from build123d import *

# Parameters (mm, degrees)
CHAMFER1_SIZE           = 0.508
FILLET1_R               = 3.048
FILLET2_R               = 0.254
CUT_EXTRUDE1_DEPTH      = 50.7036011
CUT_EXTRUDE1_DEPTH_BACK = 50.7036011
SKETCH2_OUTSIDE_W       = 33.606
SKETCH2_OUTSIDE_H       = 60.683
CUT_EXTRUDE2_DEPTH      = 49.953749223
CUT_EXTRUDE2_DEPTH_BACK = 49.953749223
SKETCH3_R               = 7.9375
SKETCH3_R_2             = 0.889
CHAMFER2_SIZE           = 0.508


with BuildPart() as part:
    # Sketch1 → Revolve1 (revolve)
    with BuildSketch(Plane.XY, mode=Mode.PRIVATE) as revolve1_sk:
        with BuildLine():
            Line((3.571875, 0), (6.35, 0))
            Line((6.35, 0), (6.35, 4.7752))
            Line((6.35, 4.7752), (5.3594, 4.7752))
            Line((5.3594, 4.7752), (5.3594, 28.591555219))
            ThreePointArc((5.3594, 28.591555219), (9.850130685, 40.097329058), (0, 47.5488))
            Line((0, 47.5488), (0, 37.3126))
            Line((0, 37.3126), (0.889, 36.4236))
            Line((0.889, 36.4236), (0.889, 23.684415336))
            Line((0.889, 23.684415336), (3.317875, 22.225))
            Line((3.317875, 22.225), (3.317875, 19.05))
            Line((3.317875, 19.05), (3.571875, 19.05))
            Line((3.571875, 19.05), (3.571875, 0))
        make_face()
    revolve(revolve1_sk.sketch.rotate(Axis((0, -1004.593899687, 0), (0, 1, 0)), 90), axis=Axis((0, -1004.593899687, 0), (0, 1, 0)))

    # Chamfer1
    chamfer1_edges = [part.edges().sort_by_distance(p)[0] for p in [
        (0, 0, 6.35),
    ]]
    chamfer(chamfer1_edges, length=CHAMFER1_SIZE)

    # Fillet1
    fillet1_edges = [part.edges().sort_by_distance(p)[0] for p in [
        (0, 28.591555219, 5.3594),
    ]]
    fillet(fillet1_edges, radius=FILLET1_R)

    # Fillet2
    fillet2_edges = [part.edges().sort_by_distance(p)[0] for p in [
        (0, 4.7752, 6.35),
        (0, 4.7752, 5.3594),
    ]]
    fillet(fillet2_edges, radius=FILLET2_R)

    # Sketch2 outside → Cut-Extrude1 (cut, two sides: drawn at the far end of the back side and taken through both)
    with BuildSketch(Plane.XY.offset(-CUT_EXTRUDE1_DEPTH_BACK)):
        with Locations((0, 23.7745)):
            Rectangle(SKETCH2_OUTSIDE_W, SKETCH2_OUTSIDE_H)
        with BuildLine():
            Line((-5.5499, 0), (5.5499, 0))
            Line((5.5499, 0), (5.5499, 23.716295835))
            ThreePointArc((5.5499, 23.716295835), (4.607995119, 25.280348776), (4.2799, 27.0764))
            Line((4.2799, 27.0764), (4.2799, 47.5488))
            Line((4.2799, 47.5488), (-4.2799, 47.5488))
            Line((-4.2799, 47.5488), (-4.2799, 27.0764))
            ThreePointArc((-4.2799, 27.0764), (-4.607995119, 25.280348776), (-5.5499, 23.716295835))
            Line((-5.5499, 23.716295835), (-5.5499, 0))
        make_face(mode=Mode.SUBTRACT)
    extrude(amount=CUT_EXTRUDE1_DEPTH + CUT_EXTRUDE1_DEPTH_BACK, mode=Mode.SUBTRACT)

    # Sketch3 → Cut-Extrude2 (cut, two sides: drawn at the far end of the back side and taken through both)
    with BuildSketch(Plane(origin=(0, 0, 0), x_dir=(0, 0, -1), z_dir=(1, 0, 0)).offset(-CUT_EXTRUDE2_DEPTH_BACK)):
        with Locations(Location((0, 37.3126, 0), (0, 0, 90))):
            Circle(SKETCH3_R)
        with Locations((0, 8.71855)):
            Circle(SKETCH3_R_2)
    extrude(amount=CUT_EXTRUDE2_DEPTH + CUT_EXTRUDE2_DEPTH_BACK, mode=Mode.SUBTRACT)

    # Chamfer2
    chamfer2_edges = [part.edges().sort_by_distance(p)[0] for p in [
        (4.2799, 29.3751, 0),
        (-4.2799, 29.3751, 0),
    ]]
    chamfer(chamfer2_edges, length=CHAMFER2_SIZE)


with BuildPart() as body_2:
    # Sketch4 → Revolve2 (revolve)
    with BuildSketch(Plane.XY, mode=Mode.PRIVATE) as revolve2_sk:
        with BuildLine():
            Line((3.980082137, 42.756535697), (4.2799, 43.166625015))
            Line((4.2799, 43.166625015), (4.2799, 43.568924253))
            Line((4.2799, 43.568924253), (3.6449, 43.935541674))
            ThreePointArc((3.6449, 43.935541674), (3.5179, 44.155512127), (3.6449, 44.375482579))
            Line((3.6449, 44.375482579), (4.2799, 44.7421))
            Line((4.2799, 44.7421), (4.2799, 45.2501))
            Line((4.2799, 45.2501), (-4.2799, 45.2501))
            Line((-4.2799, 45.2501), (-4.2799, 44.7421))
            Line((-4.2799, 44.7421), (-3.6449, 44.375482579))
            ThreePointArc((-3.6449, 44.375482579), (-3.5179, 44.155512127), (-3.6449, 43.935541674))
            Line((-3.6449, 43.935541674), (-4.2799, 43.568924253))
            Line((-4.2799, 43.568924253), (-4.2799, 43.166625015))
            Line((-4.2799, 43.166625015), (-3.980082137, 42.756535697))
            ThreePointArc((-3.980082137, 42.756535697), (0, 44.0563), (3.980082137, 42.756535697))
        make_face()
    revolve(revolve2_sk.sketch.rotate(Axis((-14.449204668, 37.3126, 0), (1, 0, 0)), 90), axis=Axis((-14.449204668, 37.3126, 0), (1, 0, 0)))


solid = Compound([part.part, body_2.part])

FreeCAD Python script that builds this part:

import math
import FreeCAD as App
import Part
import Sketcher
Q = App.Units.Quantity


def edges_at(feature, points):
    """Names of the edges that pass closest to the given points."""
    edges = feature.Shape.Edges
    near = lambda p: min(range(len(edges)), key=lambda i: edges[i].distToShape(Part.Vertex(*p))[0])
    return sorted({f"Edge{near(p) + 1}" for p in points})

doc = App.newDocument("Part")
body = doc.addObject("PartDesign::Body", "Body")

# Sketch on XY plane
sketch1 = doc.addObject("Sketcher::SketchObject", "Sketch")
body.addObject(sketch1)
sketch1.AttachmentSupport = (doc.XY_Plane, [""])
sketch1.MapMode = "FlatFace"
sketch1.addGeometry([
    Part.LineSegment(App.Vector(3.57, 0, 0), App.Vector(6.35, 0, 0)),  # 0
    Part.LineSegment(App.Vector(6.35, 0, 0), App.Vector(6.35, 4.78, 0)),  # 1
    Part.LineSegment(App.Vector(6.35, 4.78, 0), App.Vector(5.36, 4.78, 0)),  # 2
    Part.LineSegment(App.Vector(5.36, 4.78, 0), App.Vector(5.36, 28.59, 0)),  # 3
    Part.ArcOfCircle(Part.Circle(App.Vector(0, 37.31, 0), App.Vector(0, 0, 1), 10.24), math.radians(-58), math.radians(90)),  # 4
    Part.LineSegment(App.Vector(0, 47.55, 0), App.Vector(0, 37.31, 0)),  # 5
    Part.LineSegment(App.Vector(0, 37.31, 0), App.Vector(0.89, 36.42, 0)),  # 6
    Part.LineSegment(App.Vector(0.89, 36.42, 0), App.Vector(0.89, 23.68, 0)),  # 7
    Part.LineSegment(App.Vector(0.89, 23.68, 0), App.Vector(3.32, 22.23, 0)),  # 8
    Part.LineSegment(App.Vector(3.32, 22.23, 0), App.Vector(3.32, 19.05, 0)),  # 9
    Part.LineSegment(App.Vector(3.32, 19.05, 0), App.Vector(3.57, 19.05, 0)),  # 10
    Part.LineSegment(App.Vector(3.57, 19.05, 0), App.Vector(3.57, 0, 0)),  # 11
], False)
sketch1.addConstraint([
    Sketcher.Constraint("Coincident", 0, 2, 1, 1),
    Sketcher.Constraint("Coincident", 1, 2, 2, 1),
    Sketcher.Constraint("Coincident", 2, 2, 3, 1),
    Sketcher.Constraint("Coincident", 3, 2, 4, 1),
    Sketcher.Constraint("Coincident", 4, 2, 5, 1),
    Sketcher.Constraint("Coincident", 5, 2, 6, 1),
    Sketcher.Constraint("Coincident", 6, 2, 7, 1),
    Sketcher.Constraint("Coincident", 7, 2, 8, 1),
    Sketcher.Constraint("Coincident", 8, 2, 9, 1),
    Sketcher.Constraint("Coincident", 9, 2, 10, 1),
    Sketcher.Constraint("Coincident", 10, 2, 11, 1),
    Sketcher.Constraint("Coincident", 11, 2, 0, 1),
    Sketcher.Constraint("Horizontal", 0),
    Sketcher.Constraint("Vertical", 1),
    Sketcher.Constraint("Horizontal", 2),
    Sketcher.Constraint("Vertical", 3),
    Sketcher.Constraint("Vertical", 5),
    Sketcher.Constraint("Vertical", 7),
    Sketcher.Constraint("Vertical", 9),
    Sketcher.Constraint("Horizontal", 10),
    Sketcher.Constraint("Vertical", 11),
    Sketcher.Constraint("Coincident", 5, 2, 4, 3),
    Sketcher.Constraint("PointOnObject", 4, 3, -2),
    Sketcher.Constraint("PointOnObject", 0, 2, -1),
    Sketcher.Constraint("Angle", 6, Q("-45 deg")),
    Sketcher.Constraint("Angle", 8, Q("-31 deg")),
    Sketcher.Constraint("Radius", 4, Q("0.403 in")),
    Sketcher.Constraint("DistanceX", 10, 1, 10, 2, Q("0.01 in")),
    Sketcher.Constraint("DistanceY", 11, 2, 11, 1, Q("0.75 in")),
    Sketcher.Constraint("DistanceX", 0, 1, 0, 2, Q("0.109375 in")),
    Sketcher.Constraint("DistanceX", 2, 2, 2, 1, Q("0.039 in")),
    Sketcher.Constraint("DistanceY", 1, 1, 1, 2, Q("0.188 in")),
    Sketcher.Constraint("DistanceY", 9, 2, 9, 1, Q("0.125 in")),
    Sketcher.Constraint("DistanceX", -1, 1, 0, 2, Q("0.25 in")),
    Sketcher.Constraint("DistanceY", -1, 1, 4, 3, Q("1.469 in")),
    Sketcher.Constraint("DistanceX", -1, 1, 6, 2, Q("0.035 in")),
])
revolution = doc.addObject("PartDesign::Revolution", "Revolution")
body.addObject(revolution)
revolution.Profile = sketch1
revolution.ReferenceAxis = (sketch1, ["V_Axis"])
revolution.Angle = 360
doc.recompute()

chamfer = doc.addObject("PartDesign::Chamfer", "Chamfer")
body.addObject(chamfer)
chamfer.Base = (revolution, edges_at(revolution, [(0, 0, 6.35)]))
chamfer.Size = Q("0.02 in")
doc.recompute()

fillet = doc.addObject("PartDesign::Fillet", "Fillet")
body.addObject(fillet)
fillet.Base = (chamfer, edges_at(chamfer, [(0, 28.592, 5.359)]))
fillet.Radius = Q("0.12 in")
doc.recompute()

fillet2 = doc.addObject("PartDesign::Fillet", "Fillet001")
body.addObject(fillet2)
fillet2.Base = (fillet, edges_at(fillet, [(0, 4.775, 6.35), (0, 4.775, 5.359)]))
fillet2.Radius = Q("0.01 in")

# Sketch on XY plane
sketch2 = doc.addObject("Sketcher::SketchObject", "Sketch001")
body.addObject(sketch2)
sketch2.AttachmentSupport = (doc.XY_Plane, [""])
sketch2.MapMode = "FlatFace"
sketch2.addGeometry([
    Part.LineSegment(App.Vector(-16.8, 54.1, 0), App.Vector(-16.8, -6.6, 0)),  # 0
    Part.LineSegment(App.Vector(-16.8, -6.6, 0), App.Vector(16.8, -6.6, 0)),  # 1
    Part.LineSegment(App.Vector(16.8, -6.6, 0), App.Vector(16.8, 54.1, 0)),  # 2
    Part.LineSegment(App.Vector(16.8, 54.1, 0), App.Vector(-16.8, 54.1, 0)),  # 3
    Part.LineSegment(App.Vector(5.5, 0, 0), App.Vector(-5.5, 0, 0)),  # 4
    Part.LineSegment(App.Vector(-5.5, 0, 0), App.Vector(-5.5, 23.7, 0)),  # 5
    Part.ArcOfCircle(Part.Circle(App.Vector(-9.4, 27.1, 0), App.Vector(0, 0, 1), 5.1), math.radians(-41), math.radians(0)),  # 6
    Part.LineSegment(App.Vector(-4.3, 27.1, 0), App.Vector(-4.3, 47.5, 0)),  # 7
    Part.LineSegment(App.Vector(-4.3, 47.5, 0), App.Vector(4.3, 47.5, 0)),  # 8
    Part.LineSegment(App.Vector(4.3, 47.5, 0), App.Vector(4.3, 27.1, 0)),  # 9
    Part.ArcOfCircle(Part.Circle(App.Vector(9.4, 27.1, 0), App.Vector(0, 0, 1), 5.1), math.radians(-180), math.radians(-139)),  # 10
    Part.LineSegment(App.Vector(5.5, 23.7, 0), App.Vector(5.5, 0, 0)),  # 11
], False)
sketch2.addConstraint([
    Sketcher.Constraint("Coincident", 0, 2, 1, 1),
    Sketcher.Constraint("Coincident", 1, 2, 2, 1),
    Sketcher.Constraint("Coincident", 2, 2, 3, 1),
    Sketcher.Constraint("Coincident", 3, 2, 0, 1),
    Sketcher.Constraint("Coincident", 4, 2, 5, 1),
    Sketcher.Constraint("Coincident", 5, 2, 6, 1),
    Sketcher.Constraint("Tangent", 6, 2, 7, 1),
    Sketcher.Constraint("Coincident", 7, 2, 8, 1),
    Sketcher.Constraint("Coincident", 8, 2, 9, 1),
    Sketcher.Constraint("Tangent", 9, 2, 10, 1),
    Sketcher.Constraint("Coincident", 10, 2, 11, 1),
    Sketcher.Constraint("Coincident", 11, 2, 4, 1),
    Sketcher.Constraint("Vertical", 0),
    Sketcher.Constraint("Horizontal", 1),
    Sketcher.Constraint("Vertical", 2),
    Sketcher.Constraint("Horizontal", 3),
    Sketcher.Constraint("Horizontal", 4),
    Sketcher.Constraint("Vertical", 5),
    Sketcher.Constraint("Vertical", 7),
    Sketcher.Constraint("Horizontal", 8),
    Sketcher.Constraint("Vertical", 9),
    Sketcher.Constraint("Vertical", 11),
    Sketcher.Constraint("Equal", 6, 10),
    Sketcher.Constraint("Symmetric", 4, 2, 11, 2, -1, 1),
    Sketcher.Constraint("Symmetric", 6, 3, 10, 3, -2),
    Sketcher.Constraint("Radius", 6, Q("0.2 in")),
    Sketcher.Constraint("DistanceX", 4, 2, 4, 1, Q("0.437 in")),
    Sketcher.Constraint("DistanceX", 8, 1, 8, 2, Q("0.337 in")),
    Sketcher.Constraint("DistanceY", 7, 1, 7, 2, Q("0.806 in")),
    Sketcher.Constraint("DistanceY", -1, 1, 6, 3, Q("1.066 in")),
    Sketcher.Constraint("DistanceX", 1, 1, 1, 2, 33.606),
    Sketcher.Constraint("DistanceY", 0, 2, 0, 1, 60.683),
    Sketcher.Constraint("DistanceX", 0, 2, -1, 1, 16.803),
    Sketcher.Constraint("DistanceY", 0, 2, -1, 1, 6.567),
])
pocket1 = doc.addObject("PartDesign::Pocket", "Pocket")
body.addObject(pocket1)
pocket1.Profile = sketch2
pocket1.Type = "ThroughAll"
pocket1.Midplane = True

# Sketch on YZ plane
sketch3 = doc.addObject("Sketcher::SketchObject", "Sketch002")
body.addObject(sketch3)
sketch3.AttachmentSupport = (doc.YZ_Plane, [""])
sketch3.MapMode = "FlatFace"
sketch3.addGeometry([
    Part.Circle(App.Vector(37.3, 0, 0), App.Vector(0, 0, 1), 7.9),
    Part.Circle(App.Vector(8.7, 0, 0), App.Vector(0, 0, 1), 0.9),
], False)
sketch3.addConstraint([
    Sketcher.Constraint("PointOnObject", 0, 3, -1),
    Sketcher.Constraint("PointOnObject", 1, 3, -1),
    Sketcher.Constraint("Diameter", 1, Q("0.07 in")),
    Sketcher.Constraint("Diameter", 0, Q("0.625 in")),
    Sketcher.Constraint("DistanceX", -1, 1, 0, 3, Q("1.469 in")),
    Sketcher.Constraint("DistanceX", -1, 1, 1, 3, 8.71855),
])
pocket2 = doc.addObject("PartDesign::Pocket", "Pocket001")
body.addObject(pocket2)
pocket2.Profile = sketch3
pocket2.Type = "ThroughAll"
pocket2.Midplane = True
doc.recompute()

chamfer2 = doc.addObject("PartDesign::Chamfer", "Chamfer001")
body.addObject(chamfer2)
chamfer2.Base = (pocket2, edges_at(pocket2, [(4.28, 29.375, 0), (-4.28, 29.375, 0)]))
chamfer2.Size = Q("0.02 in")
body2 = doc.addObject("PartDesign::Body", "Body001")

# Sketch on XY plane
sketch4 = doc.addObject("Sketcher::SketchObject", "Sketch003")
body2.addObject(sketch4)
sketch4.AttachmentSupport = (doc.getObject("XY_Plane001"), [""])
sketch4.MapMode = "FlatFace"
sketch4.addGeometry([
    Part.LineSegment(App.Vector(3.98, 42.76, 0), App.Vector(4.28, 43.17, 0)),  # 0
    Part.LineSegment(App.Vector(4.28, 43.17, 0), App.Vector(4.28, 43.57, 0)),  # 1
    Part.LineSegment(App.Vector(4.28, 43.57, 0), App.Vector(3.64, 43.94, 0)),  # 2
    Part.ArcOfCircle(Part.Circle(App.Vector(3.77, 44.16, 0), App.Vector(0, 0, 1), 0.25), math.radians(120), math.radians(240)),  # 3
    Part.LineSegment(App.Vector(3.64, 44.38, 0), App.Vector(4.28, 44.74, 0)),  # 4
    Part.LineSegment(App.Vector(4.28, 44.74, 0), App.Vector(4.28, 45.25, 0)),  # 5
    Part.LineSegment(App.Vector(4.28, 45.25, 0), App.Vector(-4.28, 45.25, 0)),  # 6
    Part.LineSegment(App.Vector(-4.28, 45.25, 0), App.Vector(-4.28, 44.74, 0)),  # 7
    Part.LineSegment(App.Vector(-4.28, 44.74, 0), App.Vector(-3.64, 44.38, 0)),  # 8
    Part.ArcOfCircle(Part.Circle(App.Vector(-3.77, 44.16, 0), App.Vector(0, 0, 1), 0.25), math.radians(-60), math.radians(60)),  # 9
    Part.LineSegment(App.Vector(-3.64, 43.94, 0), App.Vector(-4.28, 43.57, 0)),  # 10
    Part.LineSegment(App.Vector(-4.28, 43.57, 0), App.Vector(-4.28, 43.17, 0)),  # 11
    Part.LineSegment(App.Vector(-4.28, 43.17, 0), App.Vector(-3.98, 42.76, 0)),  # 12
    Part.ArcOfCircle(Part.Circle(App.Vector(0, 37.31, 0), App.Vector(0, 0, 1), 6.74), math.radians(54), math.radians(126)),  # 13
], False)
sketch4.addGeometry(Part.LineSegment(App.Vector(-4.28, 37.31, 0), App.Vector(4.28, 37.31, 0)), True)  # axis
sketch4.addConstraint([
    Sketcher.Constraint("Coincident", 0, 2, 1, 1),
    Sketcher.Constraint("Coincident", 1, 2, 2, 1),
    Sketcher.Constraint("Tangent", 2, 2, 3, 2),
    Sketcher.Constraint("Tangent", 3, 1, 4, 1),
    Sketcher.Constraint("Coincident", 4, 2, 5, 1),
    Sketcher.Constraint("Coincident", 5, 2, 6, 1),
    Sketcher.Constraint("Coincident", 6, 2, 7, 1),
    Sketcher.Constraint("Coincident", 7, 2, 8, 1),
    Sketcher.Constraint("Tangent", 8, 2, 9, 2),
    Sketcher.Constraint("Tangent", 9, 1, 10, 1),
    Sketcher.Constraint("Coincident", 10, 2, 11, 1),
    Sketcher.Constraint("Coincident", 11, 2, 12, 1),
    Sketcher.Constraint("Coincident", 12, 2, 13, 2),
    Sketcher.Constraint("Coincident", 13, 1, 0, 1),
    Sketcher.Constraint("Vertical", 1),
    Sketcher.Constraint("Vertical", 5),
    Sketcher.Constraint("Horizontal", 6),
    Sketcher.Constraint("Vertical", 7),
    Sketcher.Constraint("Vertical", 11),
    Sketcher.Constraint("Horizontal", 14),
    Sketcher.Constraint("Equal", 3, 9),
    Sketcher.Constraint("Symmetric", 3, 3, 9, 3, -2),
    Sketcher.Constraint("Symmetric", 4, 2, 7, 2, -2),
    Sketcher.Constraint("Symmetric", 1, 2, 10, 2, -2),
    Sketcher.Constraint("Symmetric", 12, 2, 13, 1, -2),
    Sketcher.Constraint("Parallel", 2, 8),
    Sketcher.Constraint("Horizontal", 0, 2, 11, 2),
    Sketcher.Constraint("Horizontal", 13, 3, 14, 1),
    Sketcher.Constraint("Vertical", 1, 2, 4, 2),
    Sketcher.Constraint("Vertical", 11, 2, 14, 1),
    Sketcher.Constraint("Vertical", 5, 2, 14, 2),
    Sketcher.Constraint("Radius", 3, Q("0.01 in")),
    Sketcher.Constraint("Angle", 2, Q("150 deg")),
    Sketcher.Constraint("DistanceY", 5, 1, 5, 2, Q("0.02 in")),
    Sketcher.Constraint("Radius", 13, Q("0.2655 in")),
    Sketcher.Constraint("Distance", 0, Q("0.02 in")),
    Sketcher.Constraint("DistanceX", 6, 2, 6, 1, Q("0.337 in")),
    Sketcher.Constraint("DistanceX", 3, 3, 0, 2, Q("0.02 in")),
    Sketcher.Constraint("DistanceY", -1, 1, 13, 3, Q("1.469 in")),
    Sketcher.Constraint("DistanceY", 1, 1, 1, 2, 0.402299),
    Sketcher.Constraint("DistanceY", 12, 2, 11, 2, 0.410089),
])
revolution2 = doc.addObject("PartDesign::Revolution", "Revolution001")
body2.addObject(revolution2)
revolution2.Profile = sketch4
revolution2.ReferenceAxis = (sketch4, ["Axis0"])
revolution2.Angle = 360

doc.recompute()
